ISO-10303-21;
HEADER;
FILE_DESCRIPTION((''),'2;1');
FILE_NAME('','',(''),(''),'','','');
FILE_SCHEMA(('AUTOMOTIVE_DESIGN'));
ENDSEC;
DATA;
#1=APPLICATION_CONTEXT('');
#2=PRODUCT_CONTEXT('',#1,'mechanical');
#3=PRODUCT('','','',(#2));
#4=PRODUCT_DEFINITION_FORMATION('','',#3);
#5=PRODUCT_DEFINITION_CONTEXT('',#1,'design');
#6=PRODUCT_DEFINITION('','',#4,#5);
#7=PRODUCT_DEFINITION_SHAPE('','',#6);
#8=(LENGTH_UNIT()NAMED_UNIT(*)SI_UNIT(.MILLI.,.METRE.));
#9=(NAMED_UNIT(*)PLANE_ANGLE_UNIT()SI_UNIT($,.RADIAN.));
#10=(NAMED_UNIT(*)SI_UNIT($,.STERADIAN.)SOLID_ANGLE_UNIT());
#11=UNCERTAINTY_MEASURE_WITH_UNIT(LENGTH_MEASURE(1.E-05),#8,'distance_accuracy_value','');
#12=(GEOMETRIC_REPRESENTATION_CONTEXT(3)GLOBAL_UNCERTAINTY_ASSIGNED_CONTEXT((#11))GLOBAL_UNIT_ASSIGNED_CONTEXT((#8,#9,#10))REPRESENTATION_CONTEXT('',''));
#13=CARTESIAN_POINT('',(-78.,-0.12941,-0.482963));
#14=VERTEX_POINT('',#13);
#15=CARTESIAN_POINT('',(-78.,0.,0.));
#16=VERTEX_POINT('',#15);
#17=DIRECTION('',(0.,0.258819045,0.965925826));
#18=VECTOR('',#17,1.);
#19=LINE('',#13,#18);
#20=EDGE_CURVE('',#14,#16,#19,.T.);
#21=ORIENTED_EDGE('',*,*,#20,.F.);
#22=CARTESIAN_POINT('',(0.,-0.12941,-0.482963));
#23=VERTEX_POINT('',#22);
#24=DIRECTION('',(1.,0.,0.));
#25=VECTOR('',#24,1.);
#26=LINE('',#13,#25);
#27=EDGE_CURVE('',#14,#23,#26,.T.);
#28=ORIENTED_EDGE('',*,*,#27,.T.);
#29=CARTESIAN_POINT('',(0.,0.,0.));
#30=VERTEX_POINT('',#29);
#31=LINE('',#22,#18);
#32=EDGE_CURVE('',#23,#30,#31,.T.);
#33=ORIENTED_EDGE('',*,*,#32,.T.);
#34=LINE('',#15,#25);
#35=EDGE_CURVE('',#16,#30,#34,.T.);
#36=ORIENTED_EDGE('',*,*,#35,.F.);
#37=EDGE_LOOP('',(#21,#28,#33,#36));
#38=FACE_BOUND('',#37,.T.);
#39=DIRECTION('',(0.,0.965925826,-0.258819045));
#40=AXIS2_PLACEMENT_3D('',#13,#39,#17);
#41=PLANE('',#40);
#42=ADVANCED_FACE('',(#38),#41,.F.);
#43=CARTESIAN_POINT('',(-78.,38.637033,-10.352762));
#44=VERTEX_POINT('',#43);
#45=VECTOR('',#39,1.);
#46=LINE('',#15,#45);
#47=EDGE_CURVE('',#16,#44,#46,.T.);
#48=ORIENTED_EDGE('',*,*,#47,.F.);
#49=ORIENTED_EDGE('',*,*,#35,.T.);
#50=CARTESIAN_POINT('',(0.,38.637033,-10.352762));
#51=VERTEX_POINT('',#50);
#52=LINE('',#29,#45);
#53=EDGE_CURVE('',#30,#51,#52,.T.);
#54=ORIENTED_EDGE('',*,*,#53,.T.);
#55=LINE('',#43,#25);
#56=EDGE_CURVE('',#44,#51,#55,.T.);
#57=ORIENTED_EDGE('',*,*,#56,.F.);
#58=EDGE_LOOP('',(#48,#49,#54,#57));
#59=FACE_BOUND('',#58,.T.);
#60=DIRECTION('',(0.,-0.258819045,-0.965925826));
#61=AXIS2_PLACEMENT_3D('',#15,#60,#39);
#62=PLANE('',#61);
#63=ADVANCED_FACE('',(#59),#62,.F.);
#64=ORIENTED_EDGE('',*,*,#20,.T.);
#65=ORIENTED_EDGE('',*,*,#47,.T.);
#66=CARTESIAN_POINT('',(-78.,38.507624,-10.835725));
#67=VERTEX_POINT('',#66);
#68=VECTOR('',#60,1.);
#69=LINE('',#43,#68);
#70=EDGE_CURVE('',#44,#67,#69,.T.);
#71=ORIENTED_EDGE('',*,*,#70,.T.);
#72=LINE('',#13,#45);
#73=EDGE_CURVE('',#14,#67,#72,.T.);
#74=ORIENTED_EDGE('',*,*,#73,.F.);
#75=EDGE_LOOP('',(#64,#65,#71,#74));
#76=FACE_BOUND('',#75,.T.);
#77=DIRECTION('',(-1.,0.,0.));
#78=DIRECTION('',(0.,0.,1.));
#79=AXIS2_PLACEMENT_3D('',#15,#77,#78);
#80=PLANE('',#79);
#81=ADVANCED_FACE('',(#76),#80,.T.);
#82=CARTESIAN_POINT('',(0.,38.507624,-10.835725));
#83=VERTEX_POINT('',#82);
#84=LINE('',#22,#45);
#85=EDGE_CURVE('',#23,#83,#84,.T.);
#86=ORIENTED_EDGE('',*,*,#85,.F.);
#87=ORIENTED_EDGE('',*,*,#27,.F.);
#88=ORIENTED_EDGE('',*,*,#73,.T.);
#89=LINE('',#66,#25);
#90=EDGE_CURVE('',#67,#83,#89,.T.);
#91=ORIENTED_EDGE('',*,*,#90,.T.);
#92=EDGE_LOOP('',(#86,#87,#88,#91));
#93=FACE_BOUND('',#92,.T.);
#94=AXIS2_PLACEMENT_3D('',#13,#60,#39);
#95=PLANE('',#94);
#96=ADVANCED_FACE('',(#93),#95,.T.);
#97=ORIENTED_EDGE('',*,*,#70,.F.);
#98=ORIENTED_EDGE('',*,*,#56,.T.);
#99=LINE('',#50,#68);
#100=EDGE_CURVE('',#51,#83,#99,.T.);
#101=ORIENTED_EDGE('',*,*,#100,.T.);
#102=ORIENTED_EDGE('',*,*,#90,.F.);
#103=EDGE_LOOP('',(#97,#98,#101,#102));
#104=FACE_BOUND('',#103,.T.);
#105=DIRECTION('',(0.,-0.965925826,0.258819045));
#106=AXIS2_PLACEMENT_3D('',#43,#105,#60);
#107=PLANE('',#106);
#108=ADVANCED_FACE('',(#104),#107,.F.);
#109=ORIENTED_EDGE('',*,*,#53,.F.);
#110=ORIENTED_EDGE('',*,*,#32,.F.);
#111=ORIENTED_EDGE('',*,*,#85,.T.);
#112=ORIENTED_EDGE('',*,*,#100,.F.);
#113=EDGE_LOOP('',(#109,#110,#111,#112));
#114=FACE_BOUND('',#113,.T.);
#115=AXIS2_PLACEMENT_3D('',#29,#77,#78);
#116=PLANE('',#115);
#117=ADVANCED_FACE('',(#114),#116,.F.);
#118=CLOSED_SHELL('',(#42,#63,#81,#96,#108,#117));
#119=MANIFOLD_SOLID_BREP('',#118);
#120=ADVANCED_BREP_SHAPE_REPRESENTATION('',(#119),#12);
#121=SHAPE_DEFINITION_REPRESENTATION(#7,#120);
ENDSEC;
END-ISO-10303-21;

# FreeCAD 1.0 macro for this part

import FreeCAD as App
import Part
import Sketcher

V = App.Vector
Q = App.Units.Quantity

doc = App.newDocument("Part")
body = doc.addObject("PartDesign::Body", "Body")

# Sketch on YZ plane
sketch1 = body.newObject("Sketcher::SketchObject", "Sketch")
sketch1.AttachmentSupport = (doc.getObject("YZ_Plane"), [""])
sketch1.MapMode = "FlatFace"
sketch1.addGeometry([
    Part.LineSegment(V(38.64, -10.35, 0), V(0, 0, 0)),
    Part.LineSegment(V(0, 0, 0), V(-0.13, -0.48, 0)),
    Part.LineSegment(V(-0.13, -0.48, 0), V(38.51, -10.84, 0)),
    Part.LineSegment(V(38.51, -10.84, 0), V(38.64, -10.35, 0)),
], False)
sketch1.addConstraint([
    Sketcher.Constraint("Coincident", 0, 2, 1, 1),
    Sketcher.Constraint("Coincident", 1, 2, 2, 1),
    Sketcher.Constraint("Coincident", 2, 2, 3, 1),
    Sketcher.Constraint("Coincident", 3, 2, 0, 1),
    Sketcher.Constraint("Coincident", 0, 2, -1, 1),
    Sketcher.Constraint("Perpendicular", 0, 1),
    Sketcher.Constraint("Perpendicular", 1, 2),
    Sketcher.Constraint("Perpendicular", 2, 3),
    Sketcher.Constraint("Angle", 0, Q("165 deg")),
    Sketcher.Constraint("Distance", 0, Q("40 mm")),
    Sketcher.Constraint("Distance", 1, Q("0.5 mm")),
])
pad1 = body.newObject("PartDesign::Pad", "Pad")
pad1.Profile = sketch1
pad1.Length = 78
pad1.Reversed = True

doc.recompute()
